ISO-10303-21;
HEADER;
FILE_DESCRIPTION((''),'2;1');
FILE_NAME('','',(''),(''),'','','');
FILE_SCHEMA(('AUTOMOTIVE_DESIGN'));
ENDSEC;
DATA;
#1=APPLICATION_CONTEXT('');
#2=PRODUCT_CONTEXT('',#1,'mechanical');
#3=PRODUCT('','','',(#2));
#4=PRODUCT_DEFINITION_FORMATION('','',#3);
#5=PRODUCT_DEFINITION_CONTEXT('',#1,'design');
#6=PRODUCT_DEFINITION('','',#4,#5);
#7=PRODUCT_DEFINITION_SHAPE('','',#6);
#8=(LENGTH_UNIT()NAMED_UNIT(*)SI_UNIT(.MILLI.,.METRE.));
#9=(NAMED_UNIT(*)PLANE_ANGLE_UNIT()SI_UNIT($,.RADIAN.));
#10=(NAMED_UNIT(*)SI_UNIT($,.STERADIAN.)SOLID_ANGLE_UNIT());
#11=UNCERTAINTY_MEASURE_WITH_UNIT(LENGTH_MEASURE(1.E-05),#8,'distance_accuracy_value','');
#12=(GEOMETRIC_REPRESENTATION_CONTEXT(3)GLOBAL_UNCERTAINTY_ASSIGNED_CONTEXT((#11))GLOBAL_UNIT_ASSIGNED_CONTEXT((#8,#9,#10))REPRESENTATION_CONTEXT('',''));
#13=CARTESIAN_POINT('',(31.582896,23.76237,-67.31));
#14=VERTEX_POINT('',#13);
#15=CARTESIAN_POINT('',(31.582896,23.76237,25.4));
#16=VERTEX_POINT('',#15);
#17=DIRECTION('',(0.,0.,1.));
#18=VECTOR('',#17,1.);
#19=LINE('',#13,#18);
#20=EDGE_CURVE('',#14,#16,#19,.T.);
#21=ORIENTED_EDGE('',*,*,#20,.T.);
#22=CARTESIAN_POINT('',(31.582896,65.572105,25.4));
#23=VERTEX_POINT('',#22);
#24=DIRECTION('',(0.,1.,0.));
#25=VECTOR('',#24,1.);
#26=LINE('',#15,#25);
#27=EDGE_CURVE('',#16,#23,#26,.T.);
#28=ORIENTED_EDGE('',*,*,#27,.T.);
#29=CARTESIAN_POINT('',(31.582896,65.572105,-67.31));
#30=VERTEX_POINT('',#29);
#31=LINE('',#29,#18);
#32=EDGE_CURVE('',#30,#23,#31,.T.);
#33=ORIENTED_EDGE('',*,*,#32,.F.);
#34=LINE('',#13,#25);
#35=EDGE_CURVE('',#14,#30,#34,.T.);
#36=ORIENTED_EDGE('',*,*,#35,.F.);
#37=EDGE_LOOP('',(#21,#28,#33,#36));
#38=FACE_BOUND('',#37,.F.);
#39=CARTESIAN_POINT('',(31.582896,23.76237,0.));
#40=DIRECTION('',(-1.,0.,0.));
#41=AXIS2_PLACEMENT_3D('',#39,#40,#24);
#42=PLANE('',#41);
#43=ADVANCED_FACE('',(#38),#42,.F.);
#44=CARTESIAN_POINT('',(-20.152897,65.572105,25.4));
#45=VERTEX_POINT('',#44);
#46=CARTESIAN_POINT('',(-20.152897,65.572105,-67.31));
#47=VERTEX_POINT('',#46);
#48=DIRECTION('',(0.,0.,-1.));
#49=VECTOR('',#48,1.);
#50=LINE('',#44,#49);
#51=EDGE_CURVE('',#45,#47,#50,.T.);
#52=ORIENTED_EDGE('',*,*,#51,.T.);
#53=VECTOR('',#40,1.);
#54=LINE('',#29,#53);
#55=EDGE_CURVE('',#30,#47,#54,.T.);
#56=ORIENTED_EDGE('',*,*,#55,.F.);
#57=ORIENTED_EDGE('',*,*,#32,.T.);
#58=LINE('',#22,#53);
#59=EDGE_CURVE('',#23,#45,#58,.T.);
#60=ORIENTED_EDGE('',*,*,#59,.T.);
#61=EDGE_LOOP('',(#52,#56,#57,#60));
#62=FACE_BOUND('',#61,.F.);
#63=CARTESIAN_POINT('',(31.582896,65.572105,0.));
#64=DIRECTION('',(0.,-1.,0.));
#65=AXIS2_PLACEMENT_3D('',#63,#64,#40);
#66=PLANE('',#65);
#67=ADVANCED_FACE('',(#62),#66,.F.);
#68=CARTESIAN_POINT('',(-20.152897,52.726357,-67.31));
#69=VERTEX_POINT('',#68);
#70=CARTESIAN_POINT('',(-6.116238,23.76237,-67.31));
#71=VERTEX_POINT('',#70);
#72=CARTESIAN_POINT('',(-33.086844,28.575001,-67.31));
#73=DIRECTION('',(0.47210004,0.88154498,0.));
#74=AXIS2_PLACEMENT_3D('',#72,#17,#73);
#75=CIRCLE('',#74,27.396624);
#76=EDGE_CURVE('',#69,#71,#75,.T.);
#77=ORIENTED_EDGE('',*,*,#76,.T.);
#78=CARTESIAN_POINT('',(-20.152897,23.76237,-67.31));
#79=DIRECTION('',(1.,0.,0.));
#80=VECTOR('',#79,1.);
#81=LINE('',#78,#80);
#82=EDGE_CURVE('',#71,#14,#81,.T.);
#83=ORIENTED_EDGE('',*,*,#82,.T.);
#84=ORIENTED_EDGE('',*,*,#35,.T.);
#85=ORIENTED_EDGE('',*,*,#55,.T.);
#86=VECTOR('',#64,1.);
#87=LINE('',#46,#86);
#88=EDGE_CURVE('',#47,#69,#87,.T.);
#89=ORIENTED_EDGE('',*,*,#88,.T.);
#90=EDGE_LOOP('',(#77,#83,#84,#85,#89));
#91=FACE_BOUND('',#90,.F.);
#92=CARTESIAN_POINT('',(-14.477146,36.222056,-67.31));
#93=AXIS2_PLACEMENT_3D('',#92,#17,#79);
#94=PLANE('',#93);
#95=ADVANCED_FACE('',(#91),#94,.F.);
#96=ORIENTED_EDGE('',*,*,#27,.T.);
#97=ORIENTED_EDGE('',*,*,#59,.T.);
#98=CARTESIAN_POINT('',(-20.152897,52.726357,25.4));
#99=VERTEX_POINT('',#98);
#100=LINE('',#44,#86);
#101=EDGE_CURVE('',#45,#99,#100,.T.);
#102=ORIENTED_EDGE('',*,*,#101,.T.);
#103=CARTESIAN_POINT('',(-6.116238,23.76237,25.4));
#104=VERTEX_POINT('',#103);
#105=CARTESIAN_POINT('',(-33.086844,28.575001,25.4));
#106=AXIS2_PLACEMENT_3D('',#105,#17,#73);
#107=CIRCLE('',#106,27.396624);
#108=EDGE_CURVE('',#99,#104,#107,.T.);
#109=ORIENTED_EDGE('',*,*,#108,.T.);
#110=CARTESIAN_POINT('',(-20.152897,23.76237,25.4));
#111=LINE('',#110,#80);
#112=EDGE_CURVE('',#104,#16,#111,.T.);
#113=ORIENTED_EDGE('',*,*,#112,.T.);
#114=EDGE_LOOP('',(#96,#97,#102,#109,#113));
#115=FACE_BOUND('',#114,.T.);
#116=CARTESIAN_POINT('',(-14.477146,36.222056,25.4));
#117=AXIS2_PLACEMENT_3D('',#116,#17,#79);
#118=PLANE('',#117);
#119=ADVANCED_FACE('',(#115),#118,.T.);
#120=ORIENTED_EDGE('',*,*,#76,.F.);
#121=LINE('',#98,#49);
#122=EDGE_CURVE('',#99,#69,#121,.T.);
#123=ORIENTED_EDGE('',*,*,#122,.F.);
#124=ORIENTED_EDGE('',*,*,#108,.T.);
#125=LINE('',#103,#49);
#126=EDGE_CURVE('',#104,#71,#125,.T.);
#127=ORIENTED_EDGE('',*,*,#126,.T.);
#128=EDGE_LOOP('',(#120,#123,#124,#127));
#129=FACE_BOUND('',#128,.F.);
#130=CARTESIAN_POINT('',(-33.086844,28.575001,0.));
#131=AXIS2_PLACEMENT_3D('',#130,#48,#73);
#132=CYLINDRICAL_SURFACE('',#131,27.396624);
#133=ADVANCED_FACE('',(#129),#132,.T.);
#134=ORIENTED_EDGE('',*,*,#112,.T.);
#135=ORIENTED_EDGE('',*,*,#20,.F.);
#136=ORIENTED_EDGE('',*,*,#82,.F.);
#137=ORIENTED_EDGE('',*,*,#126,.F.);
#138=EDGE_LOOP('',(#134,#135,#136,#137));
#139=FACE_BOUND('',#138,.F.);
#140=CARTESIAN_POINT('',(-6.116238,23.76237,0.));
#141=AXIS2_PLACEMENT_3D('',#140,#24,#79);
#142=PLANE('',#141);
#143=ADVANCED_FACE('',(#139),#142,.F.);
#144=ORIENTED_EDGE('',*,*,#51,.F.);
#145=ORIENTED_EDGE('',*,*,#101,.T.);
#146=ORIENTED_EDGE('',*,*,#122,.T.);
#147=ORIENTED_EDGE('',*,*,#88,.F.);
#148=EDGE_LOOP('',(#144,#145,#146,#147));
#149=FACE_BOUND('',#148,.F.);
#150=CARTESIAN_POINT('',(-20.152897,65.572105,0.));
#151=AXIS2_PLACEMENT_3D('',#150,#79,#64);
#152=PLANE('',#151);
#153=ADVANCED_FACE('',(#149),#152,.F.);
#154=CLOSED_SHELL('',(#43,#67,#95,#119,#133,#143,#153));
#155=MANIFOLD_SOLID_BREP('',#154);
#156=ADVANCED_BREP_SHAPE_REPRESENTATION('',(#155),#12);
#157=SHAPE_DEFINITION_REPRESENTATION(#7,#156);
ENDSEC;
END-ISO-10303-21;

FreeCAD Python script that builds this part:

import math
import FreeCAD as App
import Part
import Sketcher
from FreeCAD import Vector
Q = App.Units.Quantity

doc = App.newDocument("Part")
body = doc.addObject("PartDesign::Body", "Body")

sketch1 = doc.addObject("Sketcher::SketchObject", "Sketch")
body.addObject(sketch1)
sketch1.AttachmentSupport = (doc.XY_Plane, [""])
sketch1.MapMode = "FlatFace"
sketch1.addGeometry([
    Part.LineSegment(Vector(-6, 24, 0), Vector(32, 24, 0)),
    Part.LineSegment(Vector(32, 24, 0), Vector(32, 66, 0)),
    Part.LineSegment(Vector(32, 66, 0), Vector(-20, 66, 0)),
    Part.LineSegment(Vector(-20, 66, 0), Vector(-20, 53, 0)),
    Part.ArcOfCircle(Part.Circle(Vector(-33, 29, 0), Vector(0, 0, 1), 27), math.radians(62), math.radians(350)),
], False)
sketch1.addConstraint([
    Sketcher.Constraint("Coincident", 0, 2, 1, 1),
    Sketcher.Constraint("Coincident", 1, 2, 2, 1),
    Sketcher.Constraint("Coincident", 2, 2, 3, 1),
    Sketcher.Constraint("Coincident", 3, 2, 4, 1),
    Sketcher.Constraint("Coincident", 4, 2, 0, 1),
    Sketcher.Constraint("Horizontal", 0),
    Sketcher.Constraint("Vertical", 1),
    Sketcher.Constraint("Horizontal", 2),
    Sketcher.Constraint("Vertical", 3),
    Sketcher.Constraint("DistanceY", -1, 1, 4, 3, Q("1.1250001 in")),
    Sketcher.Constraint("Radius", 4, Q("27.396624 mm")),
    Sketcher.Constraint("DistanceX", 0, 1, 0, 2, Q("37.699134 mm")),
    Sketcher.Constraint("DistanceX", 2, 2, 2, 1, Q("51.735792 mm")),
    Sketcher.Constraint("DistanceY", 1, 1, 1, 2, Q("41.809736 mm")),
    Sketcher.Constraint("DistanceY", 3, 2, 3, 1, Q("12.845748 mm")),
    Sketcher.Constraint("DistanceX", 4, 2, -1, 1, Q("6.116238 mm")),
])
pad1 = doc.addObject("PartDesign::Pad", "Pad")
body.addObject(pad1)
pad1.Profile = sketch1
pad1.Length = Q("2.65 in")
pad1.Reversed = True

sketch2 = doc.addObject("Sketcher::SketchObject", "Sketch001")
body.addObject(sketch2)
sketch2.AttachmentSupport = (doc.XY_Plane, [""])
sketch2.MapMode = "FlatFace"
sketch2.addGeometry([
    Part.LineSegment(Vector(-6, 24, 0), Vector(32, 24, 0)),
    Part.LineSegment(Vector(32, 24, 0), Vector(32, 66, 0)),
    Part.LineSegment(Vector(32, 66, 0), Vector(-20, 66, 0)),
    Part.LineSegment(Vector(-20, 66, 0), Vector(-20, 53, 0)),
    Part.ArcOfCircle(Part.Circle(Vector(-33, 29, 0), Vector(0, 0, 1), 27), math.radians(62), math.radians(350)),
], False)
sketch2.addConstraint([
    Sketcher.Constraint("Coincident", 0, 2, 1, 1),
    Sketcher.Constraint("Coincident", 1, 2, 2, 1),
    Sketcher.Constraint("Coincident", 2, 2, 3, 1),
    Sketcher.Constraint("Coincident", 3, 2, 4, 1),
    Sketcher.Constraint("Coincident", 4, 2, 0, 1),
    Sketcher.Constraint("Horizontal", 0),
    Sketcher.Constraint("Vertical", 1),
    Sketcher.Constraint("Horizontal", 2),
    Sketcher.Constraint("Vertical", 3),
    Sketcher.Constraint("DistanceY", -1, 1, 4, 3, Q("1.1250001 in")),
    Sketcher.Constraint("Radius", 4, Q("27.396624 mm")),
    Sketcher.Constraint("DistanceX", 0, 1, 0, 2, Q("37.699134 mm")),
    Sketcher.Constraint("DistanceX", 2, 2, 2, 1, Q("51.735792 mm")),
    Sketcher.Constraint("DistanceY", 1, 1, 1, 2, Q("41.809736 mm")),
    Sketcher.Constraint("DistanceY", 3, 2, 3, 1, Q("12.845748 mm")),
    Sketcher.Constraint("DistanceX", 4, 2, -1, 1, Q("6.116238 mm")),
])
pad2 = doc.addObject("PartDesign::Pad", "Pad001")
body.addObject(pad2)
pad2.Profile = sketch2
pad2.Length = Q("1 in")

doc.recompute()
